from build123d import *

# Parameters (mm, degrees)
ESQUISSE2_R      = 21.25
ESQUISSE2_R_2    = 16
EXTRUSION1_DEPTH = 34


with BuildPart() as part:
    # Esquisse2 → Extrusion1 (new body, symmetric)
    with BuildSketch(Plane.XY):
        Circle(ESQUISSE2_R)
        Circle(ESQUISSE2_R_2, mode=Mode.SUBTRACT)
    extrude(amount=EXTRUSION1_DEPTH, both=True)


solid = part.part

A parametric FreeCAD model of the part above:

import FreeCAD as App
import Part
import Sketcher
from FreeCAD import Vector

doc = App.newDocument("Part")
body = doc.addObject("PartDesign::Body", "Body")

sketch1 = doc.addObject("Sketcher::SketchObject", "Sketch")
body.addObject(sketch1)
sketch1.AttachmentSupport = (doc.XY_Plane, [""])
sketch1.MapMode = "FlatFace"
sketch1.addGeometry(Part.Circle(Vector(0, 0, 0), Vector(0, 0, 1), 21), False)
sketch1.addGeometry(Part.Circle(Vector(0, 0, 0), Vector(0, 0, 1), 16), False)
sketch1.addConstraint(Sketcher.Constraint("Coincident", 0, 3, -1, 1))
sketch1.addConstraint(Sketcher.Constraint("Coincident", 1, 3, -1, 1))
sketch1.addConstraint(Sketcher.Constraint("Diameter", 1, 32.0))
sketch1.addConstraint(Sketcher.Constraint("Diameter", 0, 42.5))
pad1 = doc.addObject("PartDesign::Pad", "Pad")
body.addObject(pad1)
pad1.Profile = sketch1
pad1.Length = 68
pad1.Midplane = True

doc.recompute()
